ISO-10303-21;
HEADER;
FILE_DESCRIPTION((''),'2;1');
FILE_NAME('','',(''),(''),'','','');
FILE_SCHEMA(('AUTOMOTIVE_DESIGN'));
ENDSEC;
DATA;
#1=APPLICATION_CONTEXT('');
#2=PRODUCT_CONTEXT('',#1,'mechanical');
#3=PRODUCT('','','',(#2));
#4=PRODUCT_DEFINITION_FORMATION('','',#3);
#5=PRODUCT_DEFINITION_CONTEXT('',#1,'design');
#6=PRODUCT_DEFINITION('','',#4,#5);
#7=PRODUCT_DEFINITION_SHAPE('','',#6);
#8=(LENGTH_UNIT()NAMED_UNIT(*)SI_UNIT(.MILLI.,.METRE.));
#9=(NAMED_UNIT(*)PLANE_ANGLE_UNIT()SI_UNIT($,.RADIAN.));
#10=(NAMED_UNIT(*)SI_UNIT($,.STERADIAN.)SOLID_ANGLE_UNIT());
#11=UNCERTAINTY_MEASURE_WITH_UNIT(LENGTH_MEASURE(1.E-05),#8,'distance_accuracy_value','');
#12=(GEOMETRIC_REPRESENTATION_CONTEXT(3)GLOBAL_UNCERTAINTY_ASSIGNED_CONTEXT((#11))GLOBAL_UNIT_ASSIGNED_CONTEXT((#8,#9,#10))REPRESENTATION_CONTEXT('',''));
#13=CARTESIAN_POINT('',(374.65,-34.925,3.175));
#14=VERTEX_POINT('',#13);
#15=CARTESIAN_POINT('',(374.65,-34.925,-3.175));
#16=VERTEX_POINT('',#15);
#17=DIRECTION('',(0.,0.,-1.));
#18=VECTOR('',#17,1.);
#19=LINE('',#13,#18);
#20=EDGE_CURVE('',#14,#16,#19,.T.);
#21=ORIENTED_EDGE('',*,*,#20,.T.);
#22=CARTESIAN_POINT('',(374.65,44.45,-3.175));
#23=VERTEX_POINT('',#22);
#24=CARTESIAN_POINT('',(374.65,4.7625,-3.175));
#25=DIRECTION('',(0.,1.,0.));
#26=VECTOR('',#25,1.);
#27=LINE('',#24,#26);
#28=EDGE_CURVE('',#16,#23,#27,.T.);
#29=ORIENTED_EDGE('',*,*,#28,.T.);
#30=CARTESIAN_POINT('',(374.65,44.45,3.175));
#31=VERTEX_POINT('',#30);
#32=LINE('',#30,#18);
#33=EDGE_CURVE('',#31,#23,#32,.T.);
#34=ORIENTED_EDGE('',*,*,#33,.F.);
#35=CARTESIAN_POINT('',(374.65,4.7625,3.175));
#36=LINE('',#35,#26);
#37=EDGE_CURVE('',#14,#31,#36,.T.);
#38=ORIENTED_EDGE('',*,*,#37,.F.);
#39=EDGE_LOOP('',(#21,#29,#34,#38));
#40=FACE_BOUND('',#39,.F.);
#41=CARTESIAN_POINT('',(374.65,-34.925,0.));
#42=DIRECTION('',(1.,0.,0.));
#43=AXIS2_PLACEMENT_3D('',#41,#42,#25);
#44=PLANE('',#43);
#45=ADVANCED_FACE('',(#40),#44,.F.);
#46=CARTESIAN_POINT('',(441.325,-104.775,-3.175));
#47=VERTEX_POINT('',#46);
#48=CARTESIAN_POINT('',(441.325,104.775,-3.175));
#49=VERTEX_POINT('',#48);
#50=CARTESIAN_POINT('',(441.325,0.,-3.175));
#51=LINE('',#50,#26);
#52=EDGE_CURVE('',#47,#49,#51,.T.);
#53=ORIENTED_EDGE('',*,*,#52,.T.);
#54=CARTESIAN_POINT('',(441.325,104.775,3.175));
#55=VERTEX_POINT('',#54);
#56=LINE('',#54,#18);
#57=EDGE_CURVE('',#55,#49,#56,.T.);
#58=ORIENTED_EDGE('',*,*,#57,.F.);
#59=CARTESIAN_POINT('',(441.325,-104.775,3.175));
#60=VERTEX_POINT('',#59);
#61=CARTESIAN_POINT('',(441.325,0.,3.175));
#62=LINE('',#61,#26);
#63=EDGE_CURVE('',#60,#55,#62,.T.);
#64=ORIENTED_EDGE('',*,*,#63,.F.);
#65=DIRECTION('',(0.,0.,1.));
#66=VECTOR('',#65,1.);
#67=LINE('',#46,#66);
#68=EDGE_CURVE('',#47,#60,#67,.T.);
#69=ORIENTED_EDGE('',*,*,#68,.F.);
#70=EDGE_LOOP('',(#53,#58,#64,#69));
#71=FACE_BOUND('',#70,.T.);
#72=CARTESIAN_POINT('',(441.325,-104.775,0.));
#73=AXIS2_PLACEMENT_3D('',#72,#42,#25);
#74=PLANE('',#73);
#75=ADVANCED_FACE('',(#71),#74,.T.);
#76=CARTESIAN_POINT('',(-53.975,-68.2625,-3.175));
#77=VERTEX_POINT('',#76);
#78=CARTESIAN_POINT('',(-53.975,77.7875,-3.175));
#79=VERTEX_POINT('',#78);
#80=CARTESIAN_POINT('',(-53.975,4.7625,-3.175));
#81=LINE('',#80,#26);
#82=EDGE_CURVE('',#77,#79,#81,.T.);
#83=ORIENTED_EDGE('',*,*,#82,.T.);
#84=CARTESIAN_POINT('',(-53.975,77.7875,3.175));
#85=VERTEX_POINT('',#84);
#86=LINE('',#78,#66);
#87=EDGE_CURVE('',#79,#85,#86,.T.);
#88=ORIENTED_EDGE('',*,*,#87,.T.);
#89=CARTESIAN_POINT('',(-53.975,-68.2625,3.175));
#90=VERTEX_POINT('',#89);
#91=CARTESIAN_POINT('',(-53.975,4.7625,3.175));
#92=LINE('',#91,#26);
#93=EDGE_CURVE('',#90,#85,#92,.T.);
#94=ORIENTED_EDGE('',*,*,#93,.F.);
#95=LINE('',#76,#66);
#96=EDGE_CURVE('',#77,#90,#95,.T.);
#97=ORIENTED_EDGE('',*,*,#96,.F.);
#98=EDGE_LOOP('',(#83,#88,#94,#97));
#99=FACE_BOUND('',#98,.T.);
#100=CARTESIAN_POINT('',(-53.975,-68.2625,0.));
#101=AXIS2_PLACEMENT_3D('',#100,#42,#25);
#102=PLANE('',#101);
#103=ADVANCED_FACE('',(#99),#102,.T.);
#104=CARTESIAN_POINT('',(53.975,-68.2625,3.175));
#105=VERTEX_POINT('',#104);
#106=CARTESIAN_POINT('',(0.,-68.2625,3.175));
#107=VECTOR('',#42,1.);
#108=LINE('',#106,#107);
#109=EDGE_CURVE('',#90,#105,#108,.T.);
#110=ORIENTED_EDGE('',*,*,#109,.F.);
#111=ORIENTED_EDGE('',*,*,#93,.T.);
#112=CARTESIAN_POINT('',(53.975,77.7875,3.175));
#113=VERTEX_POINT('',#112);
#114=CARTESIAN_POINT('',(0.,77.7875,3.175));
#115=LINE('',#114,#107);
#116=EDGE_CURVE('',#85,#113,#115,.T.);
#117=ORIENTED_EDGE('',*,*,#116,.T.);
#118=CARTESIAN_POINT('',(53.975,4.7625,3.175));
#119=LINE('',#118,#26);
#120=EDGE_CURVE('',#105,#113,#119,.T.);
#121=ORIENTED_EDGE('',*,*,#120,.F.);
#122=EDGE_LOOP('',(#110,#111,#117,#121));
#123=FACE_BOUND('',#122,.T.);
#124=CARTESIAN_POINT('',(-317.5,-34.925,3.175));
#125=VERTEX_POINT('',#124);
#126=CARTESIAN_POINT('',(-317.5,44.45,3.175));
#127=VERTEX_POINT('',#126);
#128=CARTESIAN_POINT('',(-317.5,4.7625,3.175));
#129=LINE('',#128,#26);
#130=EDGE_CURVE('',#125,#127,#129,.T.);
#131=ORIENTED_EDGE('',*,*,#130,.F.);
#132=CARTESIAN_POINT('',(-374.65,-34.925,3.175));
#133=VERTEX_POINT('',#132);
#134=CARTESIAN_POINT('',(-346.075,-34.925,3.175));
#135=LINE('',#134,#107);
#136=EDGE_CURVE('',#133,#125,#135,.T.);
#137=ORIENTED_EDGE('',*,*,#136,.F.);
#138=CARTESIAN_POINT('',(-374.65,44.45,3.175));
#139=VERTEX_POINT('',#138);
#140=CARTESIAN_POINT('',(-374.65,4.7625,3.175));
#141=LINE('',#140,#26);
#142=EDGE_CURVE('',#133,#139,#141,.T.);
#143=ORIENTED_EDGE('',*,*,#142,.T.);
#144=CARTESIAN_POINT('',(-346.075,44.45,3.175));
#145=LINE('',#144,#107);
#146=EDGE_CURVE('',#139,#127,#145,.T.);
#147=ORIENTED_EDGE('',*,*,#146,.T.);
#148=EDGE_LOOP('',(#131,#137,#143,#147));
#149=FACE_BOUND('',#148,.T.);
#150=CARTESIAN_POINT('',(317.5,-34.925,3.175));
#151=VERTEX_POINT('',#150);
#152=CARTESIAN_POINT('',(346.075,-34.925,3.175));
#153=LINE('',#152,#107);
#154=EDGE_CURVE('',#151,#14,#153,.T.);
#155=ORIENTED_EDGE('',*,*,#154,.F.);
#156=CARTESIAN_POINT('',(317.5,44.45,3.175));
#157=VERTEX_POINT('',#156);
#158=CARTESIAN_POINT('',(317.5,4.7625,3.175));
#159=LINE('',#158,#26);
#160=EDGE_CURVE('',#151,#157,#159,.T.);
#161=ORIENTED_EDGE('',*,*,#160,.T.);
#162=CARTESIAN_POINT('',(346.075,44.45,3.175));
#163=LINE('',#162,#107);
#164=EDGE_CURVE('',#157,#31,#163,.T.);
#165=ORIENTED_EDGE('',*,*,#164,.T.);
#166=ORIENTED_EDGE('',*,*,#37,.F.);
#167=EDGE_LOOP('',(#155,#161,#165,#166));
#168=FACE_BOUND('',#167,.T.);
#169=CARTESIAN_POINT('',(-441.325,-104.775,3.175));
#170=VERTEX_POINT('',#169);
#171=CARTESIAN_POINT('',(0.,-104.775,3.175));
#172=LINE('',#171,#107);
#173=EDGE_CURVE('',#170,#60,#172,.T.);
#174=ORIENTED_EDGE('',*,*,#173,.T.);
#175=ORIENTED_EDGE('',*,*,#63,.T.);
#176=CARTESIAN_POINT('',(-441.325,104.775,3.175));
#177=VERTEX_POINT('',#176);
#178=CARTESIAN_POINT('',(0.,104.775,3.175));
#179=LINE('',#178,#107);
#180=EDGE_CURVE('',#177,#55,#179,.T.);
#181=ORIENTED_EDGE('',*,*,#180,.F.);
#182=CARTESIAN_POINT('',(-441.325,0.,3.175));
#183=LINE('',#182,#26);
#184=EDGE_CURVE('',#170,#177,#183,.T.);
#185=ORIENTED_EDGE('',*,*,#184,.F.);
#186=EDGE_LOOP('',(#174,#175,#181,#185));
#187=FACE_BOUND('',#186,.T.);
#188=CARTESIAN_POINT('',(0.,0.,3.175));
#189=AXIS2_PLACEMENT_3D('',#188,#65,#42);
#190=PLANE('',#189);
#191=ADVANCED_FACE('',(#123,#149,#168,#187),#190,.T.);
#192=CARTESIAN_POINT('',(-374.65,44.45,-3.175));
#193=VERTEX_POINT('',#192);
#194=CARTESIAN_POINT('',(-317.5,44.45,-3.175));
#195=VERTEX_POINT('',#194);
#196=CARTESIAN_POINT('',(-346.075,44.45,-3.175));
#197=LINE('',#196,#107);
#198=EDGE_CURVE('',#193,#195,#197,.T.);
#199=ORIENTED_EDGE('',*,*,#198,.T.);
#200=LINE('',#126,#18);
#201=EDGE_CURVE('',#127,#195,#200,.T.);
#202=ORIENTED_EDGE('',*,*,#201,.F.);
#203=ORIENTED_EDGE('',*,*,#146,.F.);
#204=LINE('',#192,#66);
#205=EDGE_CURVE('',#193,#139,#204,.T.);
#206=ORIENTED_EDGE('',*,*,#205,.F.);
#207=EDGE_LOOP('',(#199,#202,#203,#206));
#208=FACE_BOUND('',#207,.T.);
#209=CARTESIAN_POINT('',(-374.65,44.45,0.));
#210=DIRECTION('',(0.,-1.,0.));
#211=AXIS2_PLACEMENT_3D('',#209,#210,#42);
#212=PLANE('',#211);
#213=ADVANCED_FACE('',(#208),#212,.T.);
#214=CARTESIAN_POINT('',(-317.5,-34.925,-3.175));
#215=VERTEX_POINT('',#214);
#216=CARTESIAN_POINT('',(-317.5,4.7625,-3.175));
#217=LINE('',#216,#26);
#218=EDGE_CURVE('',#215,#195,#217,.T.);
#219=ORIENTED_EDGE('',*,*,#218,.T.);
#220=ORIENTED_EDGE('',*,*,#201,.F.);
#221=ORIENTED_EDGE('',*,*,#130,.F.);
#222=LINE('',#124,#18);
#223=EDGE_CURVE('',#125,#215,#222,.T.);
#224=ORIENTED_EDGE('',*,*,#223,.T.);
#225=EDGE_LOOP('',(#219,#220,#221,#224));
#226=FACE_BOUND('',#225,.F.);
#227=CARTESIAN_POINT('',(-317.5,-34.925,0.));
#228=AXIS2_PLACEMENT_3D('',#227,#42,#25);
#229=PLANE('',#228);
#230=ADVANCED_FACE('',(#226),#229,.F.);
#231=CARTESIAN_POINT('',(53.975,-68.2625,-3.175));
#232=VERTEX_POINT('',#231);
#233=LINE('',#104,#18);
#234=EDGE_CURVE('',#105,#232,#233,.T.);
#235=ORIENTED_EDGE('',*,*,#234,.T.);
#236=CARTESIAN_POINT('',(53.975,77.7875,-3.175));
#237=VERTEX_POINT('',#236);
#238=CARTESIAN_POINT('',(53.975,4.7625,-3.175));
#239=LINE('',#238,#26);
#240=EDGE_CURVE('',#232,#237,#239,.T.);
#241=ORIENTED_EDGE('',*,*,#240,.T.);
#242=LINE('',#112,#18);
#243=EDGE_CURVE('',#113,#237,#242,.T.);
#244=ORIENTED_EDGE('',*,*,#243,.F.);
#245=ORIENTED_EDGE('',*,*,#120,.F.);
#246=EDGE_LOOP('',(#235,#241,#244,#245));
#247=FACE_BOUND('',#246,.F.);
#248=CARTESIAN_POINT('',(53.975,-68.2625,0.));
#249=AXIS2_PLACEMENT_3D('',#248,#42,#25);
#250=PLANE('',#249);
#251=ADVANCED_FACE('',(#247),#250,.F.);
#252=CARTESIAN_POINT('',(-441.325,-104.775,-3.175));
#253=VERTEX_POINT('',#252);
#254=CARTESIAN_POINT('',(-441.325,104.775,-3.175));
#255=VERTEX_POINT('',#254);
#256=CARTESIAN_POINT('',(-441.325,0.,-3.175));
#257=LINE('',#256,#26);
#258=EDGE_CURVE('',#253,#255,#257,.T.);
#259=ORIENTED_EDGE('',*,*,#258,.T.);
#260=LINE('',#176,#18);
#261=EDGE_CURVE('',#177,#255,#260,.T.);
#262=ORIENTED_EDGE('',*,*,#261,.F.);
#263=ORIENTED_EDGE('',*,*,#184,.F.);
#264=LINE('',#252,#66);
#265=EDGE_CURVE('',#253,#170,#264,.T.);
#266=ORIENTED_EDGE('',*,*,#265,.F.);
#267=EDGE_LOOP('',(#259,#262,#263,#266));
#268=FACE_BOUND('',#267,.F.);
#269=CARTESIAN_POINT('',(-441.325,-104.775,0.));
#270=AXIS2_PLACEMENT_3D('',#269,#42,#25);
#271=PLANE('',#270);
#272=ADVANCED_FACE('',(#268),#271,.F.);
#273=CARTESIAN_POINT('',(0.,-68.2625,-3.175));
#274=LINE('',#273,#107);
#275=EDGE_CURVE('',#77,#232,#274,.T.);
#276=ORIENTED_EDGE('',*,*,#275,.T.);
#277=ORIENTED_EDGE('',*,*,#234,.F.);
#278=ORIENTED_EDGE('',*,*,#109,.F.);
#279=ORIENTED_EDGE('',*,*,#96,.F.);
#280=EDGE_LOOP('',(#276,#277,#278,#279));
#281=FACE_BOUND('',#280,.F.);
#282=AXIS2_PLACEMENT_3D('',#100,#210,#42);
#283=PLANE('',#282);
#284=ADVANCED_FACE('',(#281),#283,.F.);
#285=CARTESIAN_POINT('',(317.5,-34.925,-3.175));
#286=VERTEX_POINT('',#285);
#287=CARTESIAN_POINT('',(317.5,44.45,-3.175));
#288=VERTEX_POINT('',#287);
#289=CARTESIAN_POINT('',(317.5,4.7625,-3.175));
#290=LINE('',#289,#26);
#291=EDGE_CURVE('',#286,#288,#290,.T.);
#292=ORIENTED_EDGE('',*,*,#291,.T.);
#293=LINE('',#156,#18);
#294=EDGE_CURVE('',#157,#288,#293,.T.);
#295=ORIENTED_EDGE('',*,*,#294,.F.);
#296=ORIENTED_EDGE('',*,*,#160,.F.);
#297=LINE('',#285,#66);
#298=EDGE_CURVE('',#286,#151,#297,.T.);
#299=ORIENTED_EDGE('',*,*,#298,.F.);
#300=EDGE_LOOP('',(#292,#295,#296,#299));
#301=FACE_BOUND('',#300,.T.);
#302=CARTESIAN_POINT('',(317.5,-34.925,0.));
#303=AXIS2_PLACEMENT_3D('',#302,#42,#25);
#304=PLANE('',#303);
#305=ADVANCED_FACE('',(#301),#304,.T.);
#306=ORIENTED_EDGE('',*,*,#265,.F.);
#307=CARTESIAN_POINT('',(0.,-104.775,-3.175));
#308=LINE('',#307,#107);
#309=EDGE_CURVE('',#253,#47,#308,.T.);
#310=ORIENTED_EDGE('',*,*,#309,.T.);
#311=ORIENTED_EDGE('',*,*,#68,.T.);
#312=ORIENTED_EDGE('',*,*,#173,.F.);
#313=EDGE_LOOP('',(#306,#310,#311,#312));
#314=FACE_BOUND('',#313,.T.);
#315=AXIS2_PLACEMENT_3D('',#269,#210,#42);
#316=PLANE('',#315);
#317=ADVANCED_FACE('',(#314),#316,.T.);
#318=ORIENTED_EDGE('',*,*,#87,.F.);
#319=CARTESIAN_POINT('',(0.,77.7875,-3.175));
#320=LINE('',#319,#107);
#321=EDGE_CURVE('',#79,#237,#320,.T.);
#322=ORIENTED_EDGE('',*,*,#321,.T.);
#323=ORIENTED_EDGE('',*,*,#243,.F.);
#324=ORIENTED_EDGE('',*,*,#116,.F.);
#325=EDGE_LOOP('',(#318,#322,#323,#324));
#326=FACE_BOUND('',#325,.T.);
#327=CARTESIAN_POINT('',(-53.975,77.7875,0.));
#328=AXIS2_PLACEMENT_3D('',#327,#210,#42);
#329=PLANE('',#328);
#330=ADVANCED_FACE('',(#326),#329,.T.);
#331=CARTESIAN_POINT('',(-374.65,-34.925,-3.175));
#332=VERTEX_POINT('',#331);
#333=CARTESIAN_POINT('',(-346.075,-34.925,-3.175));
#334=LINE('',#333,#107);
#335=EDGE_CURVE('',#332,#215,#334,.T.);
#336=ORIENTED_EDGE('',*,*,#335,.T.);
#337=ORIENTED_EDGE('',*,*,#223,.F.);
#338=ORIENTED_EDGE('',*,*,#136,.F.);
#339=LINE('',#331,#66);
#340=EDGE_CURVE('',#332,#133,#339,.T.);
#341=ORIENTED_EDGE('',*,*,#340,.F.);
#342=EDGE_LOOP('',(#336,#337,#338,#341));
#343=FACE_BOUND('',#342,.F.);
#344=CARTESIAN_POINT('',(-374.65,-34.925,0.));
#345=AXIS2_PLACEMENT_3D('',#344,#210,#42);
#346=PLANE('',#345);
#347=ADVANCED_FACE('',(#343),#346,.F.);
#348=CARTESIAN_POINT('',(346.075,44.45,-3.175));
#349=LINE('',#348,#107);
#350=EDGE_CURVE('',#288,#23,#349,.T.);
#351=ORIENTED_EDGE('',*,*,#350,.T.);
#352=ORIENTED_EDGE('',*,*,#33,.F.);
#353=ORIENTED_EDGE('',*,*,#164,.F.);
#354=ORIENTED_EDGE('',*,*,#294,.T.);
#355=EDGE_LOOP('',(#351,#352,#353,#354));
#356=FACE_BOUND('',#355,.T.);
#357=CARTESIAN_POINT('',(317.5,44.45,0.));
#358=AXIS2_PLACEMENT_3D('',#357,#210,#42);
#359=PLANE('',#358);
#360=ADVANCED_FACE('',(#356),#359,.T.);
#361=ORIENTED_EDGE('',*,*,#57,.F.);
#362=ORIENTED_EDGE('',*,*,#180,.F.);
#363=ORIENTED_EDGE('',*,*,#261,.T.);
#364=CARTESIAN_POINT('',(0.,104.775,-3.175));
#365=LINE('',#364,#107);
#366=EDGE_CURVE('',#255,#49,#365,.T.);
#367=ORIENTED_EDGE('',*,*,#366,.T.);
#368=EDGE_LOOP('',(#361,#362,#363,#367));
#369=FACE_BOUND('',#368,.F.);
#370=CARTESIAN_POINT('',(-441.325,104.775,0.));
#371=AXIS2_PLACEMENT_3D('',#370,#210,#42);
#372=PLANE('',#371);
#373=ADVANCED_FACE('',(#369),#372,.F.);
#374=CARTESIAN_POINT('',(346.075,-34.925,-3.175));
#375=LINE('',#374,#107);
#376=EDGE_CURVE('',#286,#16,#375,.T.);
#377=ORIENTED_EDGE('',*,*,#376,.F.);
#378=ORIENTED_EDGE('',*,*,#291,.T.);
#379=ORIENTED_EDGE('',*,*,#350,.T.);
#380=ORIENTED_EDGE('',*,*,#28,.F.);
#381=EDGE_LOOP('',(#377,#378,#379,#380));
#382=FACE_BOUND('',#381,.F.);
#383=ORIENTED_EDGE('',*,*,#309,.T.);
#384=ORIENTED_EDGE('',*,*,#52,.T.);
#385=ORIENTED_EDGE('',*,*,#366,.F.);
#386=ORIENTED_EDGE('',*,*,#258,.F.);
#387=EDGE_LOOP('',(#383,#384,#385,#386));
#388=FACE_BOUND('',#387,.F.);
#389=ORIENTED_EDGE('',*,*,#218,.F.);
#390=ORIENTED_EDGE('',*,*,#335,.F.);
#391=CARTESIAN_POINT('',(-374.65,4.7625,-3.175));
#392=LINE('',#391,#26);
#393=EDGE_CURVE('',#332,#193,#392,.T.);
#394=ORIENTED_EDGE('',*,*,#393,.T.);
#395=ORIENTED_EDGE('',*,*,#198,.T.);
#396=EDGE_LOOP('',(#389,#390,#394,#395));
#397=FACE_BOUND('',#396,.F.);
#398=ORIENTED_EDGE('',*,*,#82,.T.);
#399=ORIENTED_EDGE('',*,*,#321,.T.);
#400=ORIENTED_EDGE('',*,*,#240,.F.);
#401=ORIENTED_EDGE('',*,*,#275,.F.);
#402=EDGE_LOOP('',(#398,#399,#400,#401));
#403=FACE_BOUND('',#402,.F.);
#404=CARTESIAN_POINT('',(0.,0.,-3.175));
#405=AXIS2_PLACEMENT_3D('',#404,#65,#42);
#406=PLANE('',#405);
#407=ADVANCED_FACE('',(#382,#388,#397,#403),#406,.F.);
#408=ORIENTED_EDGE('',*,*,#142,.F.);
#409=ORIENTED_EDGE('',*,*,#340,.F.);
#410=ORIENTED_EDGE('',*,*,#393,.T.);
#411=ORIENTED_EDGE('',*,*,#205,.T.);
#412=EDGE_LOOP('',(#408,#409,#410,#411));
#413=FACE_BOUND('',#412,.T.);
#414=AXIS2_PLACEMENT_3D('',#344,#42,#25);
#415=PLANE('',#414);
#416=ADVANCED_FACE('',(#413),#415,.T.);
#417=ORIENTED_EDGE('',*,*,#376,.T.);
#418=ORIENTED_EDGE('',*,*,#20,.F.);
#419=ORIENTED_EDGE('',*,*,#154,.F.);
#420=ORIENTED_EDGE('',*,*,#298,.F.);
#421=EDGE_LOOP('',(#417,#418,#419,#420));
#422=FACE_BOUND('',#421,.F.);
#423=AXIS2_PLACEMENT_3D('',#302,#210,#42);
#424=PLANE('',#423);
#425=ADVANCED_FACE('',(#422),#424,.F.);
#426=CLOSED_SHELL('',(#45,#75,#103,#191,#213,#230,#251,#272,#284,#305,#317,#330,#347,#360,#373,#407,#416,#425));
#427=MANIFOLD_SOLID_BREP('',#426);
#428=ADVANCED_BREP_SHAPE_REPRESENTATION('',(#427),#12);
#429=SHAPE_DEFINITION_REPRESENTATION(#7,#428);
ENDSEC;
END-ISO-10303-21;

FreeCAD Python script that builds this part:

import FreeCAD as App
import Part
import Sketcher
from FreeCAD import Vector
Q = App.Units.Quantity

doc = App.newDocument("Part")
params = doc.addObject("Spreadsheet::Sheet", "Params")
for row, (alias, value) in enumerate([
    ("sketch1_width", "34.75 in"),
    ("sketch1_width2", "2.25 in"),
    ("sketch1_width3", "4.25 in"),
    ("sketch1_height", "8.25 in"),
    ("sketch1_height2", "5.75 in"),
    ("pad1_length", "0.25 in"),
], start=1):
    params.set(f"A{row}", alias)
    params.set(f"B{row}", "=" + value)
    params.setAlias(f"B{row}", alias)

body = doc.addObject("PartDesign::Body", "Body")

sketch1 = doc.addObject("Sketcher::SketchObject", "Sketch")
body.addObject(sketch1)
sketch1.AttachmentSupport = (doc.XY_Plane, [""])
sketch1.MapMode = "FlatFace"
sketch1.addGeometry(Part.LineSegment(Vector(-441, 105, 0), Vector(-441, -105, 0)), False)
sketch1.addGeometry(Part.LineSegment(Vector(-441, -105, 0), Vector(441, -105, 0)), False)
sketch1.addGeometry(Part.LineSegment(Vector(441, -105, 0), Vector(441, 105, 0)), False)
sketch1.addGeometry(Part.LineSegment(Vector(441, 105, 0), Vector(-441, 105, 0)), False)
sketch1.addGeometry(Part.LineSegment(Vector(-318, -35, 0), Vector(-375, -35, 0)), False)
sketch1.addGeometry(Part.LineSegment(Vector(-375, -35, 0), Vector(-375, 44, 0)), False)
sketch1.addGeometry(Part.LineSegment(Vector(-375, 44, 0), Vector(-318, 44, 0)), False)
sketch1.addGeometry(Part.LineSegment(Vector(-318, 44, 0), Vector(-318, -35, 0)), False)
sketch1.addGeometry(Part.LineSegment(Vector(54, -68, 0), Vector(-54, -68, 0)), False)
sketch1.addGeometry(Part.LineSegment(Vector(-54, -68, 0), Vector(-54, 78, 0)), False)
sketch1.addGeometry(Part.LineSegment(Vector(-54, 78, 0), Vector(54, 78, 0)), False)
sketch1.addGeometry(Part.LineSegment(Vector(54, 78, 0), Vector(54, -68, 0)), False)
sketch1.addGeometry(Part.LineSegment(Vector(375, -35, 0), Vector(318, -35, 0)), False)
sketch1.addGeometry(Part.LineSegment(Vector(318, -35, 0), Vector(318, 44, 0)), False)
sketch1.addGeometry(Part.LineSegment(Vector(318, 44, 0), Vector(375, 44, 0)), False)
sketch1.addGeometry(Part.LineSegment(Vector(375, 44, 0), Vector(375, -35, 0)), False)
sketch1.addConstraint(Sketcher.Constraint("Coincident", 0, 2, 1, 1))
sketch1.addConstraint(Sketcher.Constraint("Coincident", 1, 2, 2, 1))
sketch1.addConstraint(Sketcher.Constraint("Coincident", 2, 2, 3, 1))
sketch1.addConstraint(Sketcher.Constraint("Coincident", 3, 2, 0, 1))
sketch1.addConstraint(Sketcher.Constraint("Coincident", 4, 2, 5, 1))
sketch1.addConstraint(Sketcher.Constraint("Coincident", 5, 2, 6, 1))
sketch1.addConstraint(Sketcher.Constraint("Coincident", 6, 2, 7, 1))
sketch1.addConstraint(Sketcher.Constraint("Coincident", 7, 2, 4, 1))
sketch1.addConstraint(Sketcher.Constraint("Coincident", 8, 2, 9, 1))
sketch1.addConstraint(Sketcher.Constraint("Coincident", 9, 2, 10, 1))
sketch1.addConstraint(Sketcher.Constraint("Coincident", 10, 2, 11, 1))
sketch1.addConstraint(Sketcher.Constraint("Coincident", 11, 2, 8, 1))
sketch1.addConstraint(Sketcher.Constraint("Coincident", 12, 2, 13, 1))
sketch1.addConstraint(Sketcher.Constraint("Coincident", 13, 2, 14, 1))
sketch1.addConstraint(Sketcher.Constraint("Coincident", 14, 2, 15, 1))
sketch1.addConstraint(Sketcher.Constraint("Coincident", 15, 2, 12, 1))
sketch1.addConstraint(Sketcher.Constraint("Vertical", 0))
sketch1.addConstraint(Sketcher.Constraint("Horizontal", 1))
sketch1.addConstraint(Sketcher.Constraint("Vertical", 2))
sketch1.addConstraint(Sketcher.Constraint("Horizontal", 3))
sketch1.addConstraint(Sketcher.Constraint("Horizontal", 4))
sketch1.addConstraint(Sketcher.Constraint("Vertical", 5))
sketch1.addConstraint(Sketcher.Constraint("Horizontal", 6))
sketch1.addConstraint(Sketcher.Constraint("Vertical", 7))
sketch1.addConstraint(Sketcher.Constraint("Horizontal", 8))
sketch1.addConstraint(Sketcher.Constraint("Vertical", 9))
sketch1.addConstraint(Sketcher.Constraint("Horizontal", 10))
sketch1.addConstraint(Sketcher.Constraint("Vertical", 11))
sketch1.addConstraint(Sketcher.Constraint("Horizontal", 12))
sketch1.addConstraint(Sketcher.Constraint("Vertical", 13))
sketch1.addConstraint(Sketcher.Constraint("Horizontal", 14))
sketch1.addConstraint(Sketcher.Constraint("Vertical", 15))
sketch1.addConstraint(Sketcher.Constraint("Symmetric", 0, 2, 2, 2, -1, 1))
sketch1.addConstraint(Sketcher.Constraint("Symmetric", 7, 2, 12, 2, -2))
sketch1.addConstraint(Sketcher.Constraint("Symmetric", 5, 2, 14, 2, -2))
sketch1.addConstraint(Sketcher.Constraint("DistanceX", 1, 1, 1, 2, Q("34.75 in")))
sketch1.addConstraint(Sketcher.Constraint("DistanceX", 4, 2, 4, 1, Q("2.25 in")))
sketch1.addConstraint(Sketcher.Constraint("DistanceX", 8, 2, 8, 1, Q("4.25 in")))
sketch1.addConstraint(Sketcher.Constraint("DistanceY", 0, 2, 0, 1, Q("8.25 in")))
sketch1.addConstraint(Sketcher.Constraint("DistanceY", 9, 1, 9, 2, Q("5.75 in")))
sketch1.addConstraint(Sketcher.Constraint("DistanceX", 6, 2, -1, 1, Q("12.5 in")))
sketch1.addConstraint(Sketcher.Constraint("DistanceY", 4, 2, 3, 2, Q("5.5 in")))
sketch1.addConstraint(Sketcher.Constraint("DistanceY", 5, 1, 5, 2, Q("3.125 in")))
sketch1.addConstraint(Sketcher.Constraint("DistanceX", 0, 2, 8, 2, Q("15.25 in")))
sketch1.addConstraint(Sketcher.Constraint("DistanceY", 8, 2, -1, 1, Q("2.6875 in")))
sketch1.setExpression("Constraints[35]", "Params.sketch1_width")
sketch1.setExpression("Constraints[36]", "Params.sketch1_width2")
sketch1.setExpression("Constraints[37]", "Params.sketch1_width3")
sketch1.setExpression("Constraints[38]", "Params.sketch1_height")
sketch1.setExpression("Constraints[39]", "Params.sketch1_height2")
pad1 = doc.addObject("PartDesign::Pad", "Pad")
body.addObject(pad1)
pad1.Profile = sketch1
pad1.setExpression("Length", "Params.pad1_length")
pad1.Midplane = True

doc.recompute()
